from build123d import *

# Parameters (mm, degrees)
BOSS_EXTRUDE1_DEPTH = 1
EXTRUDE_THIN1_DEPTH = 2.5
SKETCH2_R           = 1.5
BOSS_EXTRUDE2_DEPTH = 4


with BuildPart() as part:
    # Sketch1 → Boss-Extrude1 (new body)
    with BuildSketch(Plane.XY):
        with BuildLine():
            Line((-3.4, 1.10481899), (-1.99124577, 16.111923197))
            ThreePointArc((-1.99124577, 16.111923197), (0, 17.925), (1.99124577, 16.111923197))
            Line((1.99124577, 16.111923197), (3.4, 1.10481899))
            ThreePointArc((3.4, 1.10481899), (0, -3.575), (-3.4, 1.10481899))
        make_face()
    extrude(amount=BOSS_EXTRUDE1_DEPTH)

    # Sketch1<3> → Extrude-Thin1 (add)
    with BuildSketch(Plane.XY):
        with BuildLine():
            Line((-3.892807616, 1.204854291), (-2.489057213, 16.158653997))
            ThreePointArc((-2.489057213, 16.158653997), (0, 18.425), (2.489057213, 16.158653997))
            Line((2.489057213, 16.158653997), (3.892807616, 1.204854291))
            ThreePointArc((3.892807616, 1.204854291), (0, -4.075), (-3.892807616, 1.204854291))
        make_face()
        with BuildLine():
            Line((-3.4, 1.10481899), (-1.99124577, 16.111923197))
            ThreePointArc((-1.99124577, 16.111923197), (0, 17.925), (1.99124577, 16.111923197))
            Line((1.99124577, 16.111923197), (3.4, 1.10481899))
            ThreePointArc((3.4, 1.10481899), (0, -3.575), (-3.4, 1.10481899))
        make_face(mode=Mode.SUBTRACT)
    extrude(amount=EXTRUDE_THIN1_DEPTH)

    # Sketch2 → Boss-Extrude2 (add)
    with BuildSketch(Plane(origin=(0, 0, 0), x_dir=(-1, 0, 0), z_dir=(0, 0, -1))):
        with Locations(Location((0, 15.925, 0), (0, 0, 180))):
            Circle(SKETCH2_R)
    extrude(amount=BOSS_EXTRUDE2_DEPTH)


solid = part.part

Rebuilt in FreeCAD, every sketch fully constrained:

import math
import FreeCAD as App
import Part
import Sketcher
from FreeCAD import Vector

doc = App.newDocument("Part")
body = doc.addObject("PartDesign::Body", "Body")

# Sketch on XY plane
sketch1 = body.newObject("Sketcher::SketchObject", "Sketch")
sketch1.AttachmentSupport = (doc.getObject("XY_Plane"), [""])
sketch1.MapMode = "FlatFace"
sketch1.addGeometry([
    Part.LineSegment(Vector(-1.991246, 16.111923, 0), Vector(-3.4, 1.104819, 0)),
    Part.ArcOfCircle(Part.Circle(Vector(0, 0, 0), Vector(0, 0, 1), 3.575), math.radians(161.998597), math.radians(378.001403)),
    Part.LineSegment(Vector(3.4, 1.104819, 0), Vector(1.991246, 16.111923, 0)),
    Part.ArcOfCircle(Part.Circle(Vector(0, 15.925, 0), Vector(0, 0, 1), 2), math.radians(5.362782), math.radians(174.637218)),
], False)
sketch1.addConstraint([
    Sketcher.Constraint("Coincident", 0, 2, 1, 1),
    Sketcher.Constraint("Coincident", 1, 2, 2, 1),
    Sketcher.Constraint("Tangent", 2, 2, 3, 1),
    Sketcher.Constraint("Tangent", 3, 2, 0, 1),
    Sketcher.Constraint("Coincident", 1, 3, -1, 1),
    Sketcher.Constraint("Symmetric", 2, 2, 3, 2, -2),
    Sketcher.Constraint("Radius", 3, 2.0),
    Sketcher.Constraint("Radius", 1, 3.575),
    Sketcher.Constraint("DistanceX", 0, 2, -1, 1, 3.4),
    Sketcher.Constraint("DistanceY", -1, 1, 3, 3, 15.925),
])
pad1 = body.newObject("PartDesign::Pad", "Pad")
pad1.Profile = sketch1
pad1.Length = 1

# Sketch on XY plane
sketch2 = body.newObject("Sketcher::SketchObject", "Sketch001")
sketch2.AttachmentSupport = (doc.getObject("XY_Plane"), [""])
sketch2.MapMode = "FlatFace"
sketch2.addGeometry([
    Part.LineSegment(Vector(-2.489057, 16.158654, 0), Vector(-3.892808, 1.204854, 0)),  # 0
    Part.ArcOfCircle(Part.Circle(Vector(0, 0, 0), Vector(0, 0, 1), 4.075), math.radians(162.802296), math.radians(377.197704)),  # 1
    Part.LineSegment(Vector(3.892808, 1.204854, 0), Vector(2.489057, 16.158654, 0)),  # 2
    Part.ArcOfCircle(Part.Circle(Vector(0, 15.925, 0), Vector(0, 0, 1), 2.5), math.radians(5.362782), math.radians(174.637218)),  # 3
    Part.LineSegment(Vector(-3.4, 1.104819, 0), Vector(-1.991246, 16.111923, 0)),  # 4
    Part.ArcOfCircle(Part.Circle(Vector(0, 15.925, 0), Vector(0, 0, 1), 2), math.radians(5.362782), math.radians(174.637218)),  # 5
    Part.LineSegment(Vector(1.991246, 16.111923, 0), Vector(3.4, 1.104819, 0)),  # 6
    Part.ArcOfCircle(Part.Circle(Vector(0, 0, 0), Vector(0, 0, 1), 3.575), math.radians(161.998597), math.radians(378.001403)),  # 7
], False)
sketch2.addConstraint([
    Sketcher.Constraint("Coincident", 0, 2, 1, 1),
    Sketcher.Constraint("Coincident", 1, 2, 2, 1),
    Sketcher.Constraint("Tangent", 2, 2, 3, 1),
    Sketcher.Constraint("Tangent", 3, 2, 0, 1),
    Sketcher.Constraint("Tangent", 4, 2, 5, 2),
    Sketcher.Constraint("Tangent", 5, 1, 6, 1),
    Sketcher.Constraint("Coincident", 6, 2, 7, 2),
    Sketcher.Constraint("Coincident", 7, 1, 4, 1),
    Sketcher.Constraint("Coincident", 1, 3, -1, 1),
    Sketcher.Constraint("Coincident", 7, 3, -1, 1),
    Sketcher.Constraint("Coincident", 5, 3, 3, 3),
    Sketcher.Constraint("Symmetric", 2, 2, 3, 2, -2),
    Sketcher.Constraint("Parallel", 0, 4),
    Sketcher.Constraint("Parallel", 2, 6),
    Sketcher.Constraint("Radius", 5, 2.0),
    Sketcher.Constraint("Radius", 3, 2.5),
    Sketcher.Constraint("Radius", 1, 4.075),
    Sketcher.Constraint("Radius", 7, 3.575),
    Sketcher.Constraint("DistanceX", -1, 1, 6, 2, 3.4),
    Sketcher.Constraint("DistanceY", -1, 1, 3, 3, 15.925),
])
pad2 = body.newObject("PartDesign::Pad", "Pad001")
pad2.Profile = sketch2
pad2.Length = 2.5

# Sketch on XY plane
sketch3 = body.newObject("Sketcher::SketchObject", "Sketch002")
sketch3.AttachmentSupport = (doc.getObject("XY_Plane"), [""])
sketch3.MapMode = "FlatFace"
sketch3.addGeometry(Part.Circle(Vector(0, 15.925, 0), Vector(0, 0, 1), 1.5), False)
sketch3.addConstraint([
    Sketcher.Constraint("PointOnObject", 0, 3, -2),
    Sketcher.Constraint("Diameter", 0, 3.0),
    Sketcher.Constraint("DistanceY", -1, 1, 0, 3, 15.925),
])
pad3 = body.newObject("PartDesign::Pad", "Pad002")
pad3.Profile = sketch3
pad3.Length = 4
pad3.Reversed = True

doc.recompute()
